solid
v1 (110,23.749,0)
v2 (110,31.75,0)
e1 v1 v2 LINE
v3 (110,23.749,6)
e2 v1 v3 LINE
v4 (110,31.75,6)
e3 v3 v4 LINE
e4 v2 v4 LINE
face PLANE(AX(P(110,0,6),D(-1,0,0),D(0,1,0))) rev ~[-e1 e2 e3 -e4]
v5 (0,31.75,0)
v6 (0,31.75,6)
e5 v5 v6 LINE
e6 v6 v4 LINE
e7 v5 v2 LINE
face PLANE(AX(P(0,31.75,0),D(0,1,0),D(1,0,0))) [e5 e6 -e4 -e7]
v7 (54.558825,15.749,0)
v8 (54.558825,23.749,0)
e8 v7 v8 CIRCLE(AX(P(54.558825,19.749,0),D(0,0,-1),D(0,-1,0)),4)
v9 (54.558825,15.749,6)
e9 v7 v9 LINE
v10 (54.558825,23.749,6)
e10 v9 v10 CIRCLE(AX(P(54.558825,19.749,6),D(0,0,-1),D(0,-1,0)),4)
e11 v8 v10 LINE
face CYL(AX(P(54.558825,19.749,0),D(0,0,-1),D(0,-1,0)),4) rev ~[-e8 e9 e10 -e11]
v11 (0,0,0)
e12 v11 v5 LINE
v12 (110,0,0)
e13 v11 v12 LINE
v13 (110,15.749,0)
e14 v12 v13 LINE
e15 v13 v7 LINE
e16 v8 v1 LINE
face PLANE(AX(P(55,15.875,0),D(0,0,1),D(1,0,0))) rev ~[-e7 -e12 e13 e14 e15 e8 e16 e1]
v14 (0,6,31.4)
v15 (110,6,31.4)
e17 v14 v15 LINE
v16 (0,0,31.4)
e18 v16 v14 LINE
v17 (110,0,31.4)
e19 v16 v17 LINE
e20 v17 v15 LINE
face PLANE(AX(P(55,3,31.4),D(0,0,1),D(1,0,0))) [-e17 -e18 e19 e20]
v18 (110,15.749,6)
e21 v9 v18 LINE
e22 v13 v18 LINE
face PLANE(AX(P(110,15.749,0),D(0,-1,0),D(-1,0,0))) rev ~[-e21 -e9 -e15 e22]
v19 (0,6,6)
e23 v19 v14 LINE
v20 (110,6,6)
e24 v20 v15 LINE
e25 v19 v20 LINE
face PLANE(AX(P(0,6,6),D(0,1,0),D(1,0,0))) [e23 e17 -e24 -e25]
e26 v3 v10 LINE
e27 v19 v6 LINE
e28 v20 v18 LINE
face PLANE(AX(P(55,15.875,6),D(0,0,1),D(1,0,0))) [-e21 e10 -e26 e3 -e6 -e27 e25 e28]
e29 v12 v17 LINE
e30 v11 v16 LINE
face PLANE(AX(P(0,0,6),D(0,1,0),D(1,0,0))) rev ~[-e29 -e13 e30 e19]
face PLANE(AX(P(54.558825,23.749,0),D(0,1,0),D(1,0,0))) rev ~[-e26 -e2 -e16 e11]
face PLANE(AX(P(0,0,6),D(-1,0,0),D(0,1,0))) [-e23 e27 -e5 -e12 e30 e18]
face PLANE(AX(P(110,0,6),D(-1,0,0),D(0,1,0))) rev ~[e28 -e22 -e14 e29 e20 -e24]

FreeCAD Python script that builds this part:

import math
import FreeCAD as App
import Part
import Sketcher
from FreeCAD import Vector

doc = App.newDocument("Part")
params = doc.addObject("Spreadsheet::Sheet", "Params")
for row, (alias, value) in enumerate([
    ("sketch1_width", "110 mm"),
    ("sketch1_height", "31.75 mm"),
    ("pad1_length", "6 mm"),
    ("sketch2_width", "110 mm"),
    ("sketch2_height", "6 mm"),
    ("pad2_length", "25.4 mm"),
    ("sketch3_radius", "4 mm"),
], start=1):
    params.set(f"A{row}", alias)
    params.set(f"B{row}", "=" + value)
    params.setAlias(f"B{row}", alias)

body = doc.addObject("PartDesign::Body", "Body")

sketch1 = doc.addObject("Sketcher::SketchObject", "Sketch")
body.addObject(sketch1)
sketch1.AttachmentSupport = (doc.XY_Plane, [""])
sketch1.MapMode = "FlatFace"
sketch1.addGeometry(Part.LineSegment(Vector(0, 31.75, 0), Vector(0, 0, 0)), False)
sketch1.addGeometry(Part.LineSegment(Vector(0, 0, 0), Vector(110, 0, 0)), False)
sketch1.addGeometry(Part.LineSegment(Vector(110, 0, 0), Vector(110, 31.75, 0)), False)
sketch1.addGeometry(Part.LineSegment(Vector(110, 31.75, 0), Vector(0, 31.75, 0)), False)
sketch1.addConstraint(Sketcher.Constraint("Coincident", 0, 2, 1, 1))
sketch1.addConstraint(Sketcher.Constraint("Coincident", 1, 2, 2, 1))
sketch1.addConstraint(Sketcher.Constraint("Coincident", 2, 2, 3, 1))
sketch1.addConstraint(Sketcher.Constraint("Coincident", 3, 2, 0, 1))
sketch1.addConstraint(Sketcher.Constraint("Vertical", 0))
sketch1.addConstraint(Sketcher.Constraint("Horizontal", 1))
sketch1.addConstraint(Sketcher.Constraint("Vertical", 2))
sketch1.addConstraint(Sketcher.Constraint("Horizontal", 3))
sketch1.addConstraint(Sketcher.Constraint("Coincident", 0, 2, -1, 1))
sketch1.addConstraint(Sketcher.Constraint("DistanceX", 1, 1, 1, 2, 110.0))
sketch1.addConstraint(Sketcher.Constraint("DistanceY", 0, 2, 0, 1, 31.75))
sketch1.setExpression("Constraints[9]", "Params.sketch1_width")
sketch1.setExpression("Constraints[10]", "Params.sketch1_height")
pad1 = doc.addObject("PartDesign::Pad", "Pad")
body.addObject(pad1)
pad1.Profile = sketch1
pad1.setExpression("Length", "Params.pad1_length")

sketch2 = doc.addObject("Sketcher::SketchObject", "Sketch001")
body.addObject(sketch2)
sketch2.AttachmentSupport = (doc.XY_Plane, [""])
sketch2.MapMode = "FlatFace"
sketch2.AttachmentOffset = App.Placement(Vector(0, 0, 6), App.Rotation())
sketch2.addGeometry(Part.LineSegment(Vector(0, 6, 0), Vector(0, 0, 0)), False)
sketch2.addGeometry(Part.LineSegment(Vector(0, 0, 0), Vector(110, 0, 0)), False)
sketch2.addGeometry(Part.LineSegment(Vector(110, 0, 0), Vector(110, 6, 0)), False)
sketch2.addGeometry(Part.LineSegment(Vector(110, 6, 0), Vector(0, 6, 0)), False)
sketch2.addConstraint(Sketcher.Constraint("Coincident", 0, 2, 1, 1))
sketch2.addConstraint(Sketcher.Constraint("Coincident", 1, 2, 2, 1))
sketch2.addConstraint(Sketcher.Constraint("Coincident", 2, 2, 3, 1))
sketch2.addConstraint(Sketcher.Constraint("Coincident", 3, 2, 0, 1))
sketch2.addConstraint(Sketcher.Constraint("Vertical", 0))
sketch2.addConstraint(Sketcher.Constraint("Horizontal", 1))
sketch2.addConstraint(Sketcher.Constraint("Vertical", 2))
sketch2.addConstraint(Sketcher.Constraint("Horizontal", 3))
sketch2.addConstraint(Sketcher.Constraint("Coincident", 0, 2, -1, 1))
sketch2.addConstraint(Sketcher.Constraint("DistanceX", 1, 1, 1, 2, 110.0))
sketch2.addConstraint(Sketcher.Constraint("DistanceY", 0, 2, 0, 1, 6.0))
sketch2.setExpression("Constraints[9]", "Params.sketch2_width")
sketch2.setExpression("Constraints[10]", "Params.sketch2_height")
pad2 = doc.addObject("PartDesign::Pad", "Pad001")
body.addObject(pad2)
pad2.Profile = sketch2
pad2.setExpression("Length", "Params.pad2_length")

sketch3 = doc.addObject("Sketcher::SketchObject", "Sketch002")
body.addObject(sketch3)
sketch3.AttachmentSupport = (doc.XY_Plane, [""])
sketch3.MapMode = "FlatFace"
sketch3.addGeometry(Part.LineSegment(Vector(54.558825, 23.749, 0), Vector(110, 23.749, 0)), False)
sketch3.addGeometry(Part.LineSegment(Vector(110, 23.749, 0), Vector(110, 15.749, 0)), False)
sketch3.addGeometry(Part.LineSegment(Vector(110, 15.749, 0), Vector(54.558825, 15.749, 0)), False)
sketch3.addGeometry(Part.ArcOfCircle(Part.Circle(Vector(54.558825, 19.749, 0), Vector(0, 0, 1), 4), math.radians(90), math.radians(270)), False)
sketch3.addConstraint(Sketcher.Constraint("Coincident", 0, 2, 1, 1))
sketch3.addConstraint(Sketcher.Constraint("Coincident", 1, 2, 2, 1))
sketch3.addConstraint(Sketcher.Constraint("Tangent", 2, 2, 3, 2))
sketch3.addConstraint(Sketcher.Constraint("Tangent", 3, 1, 0, 1))
sketch3.addConstraint(Sketcher.Constraint("Horizontal", 0))
sketch3.addConstraint(Sketcher.Constraint("Vertical", 1))
sketch3.addConstraint(Sketcher.Constraint("Horizontal", 2))
sketch3.addConstraint(Sketcher.Constraint("Radius", 3, 4.0))
sketch3.addConstraint(Sketcher.Constraint("DistanceX", -1, 1, 0, 2, 110.0))
sketch3.addConstraint(Sketcher.Constraint("DistanceY", -1, 1, 3, 3, 19.749))
sketch3.addConstraint(Sketcher.Constraint("DistanceX", 0, 1, 0, 2, 55.441175))
sketch3.setExpression("Constraints[7]", "Params.sketch3_radius")
pocket1 = doc.addObject("PartDesign::Pocket", "Pocket")
body.addObject(pocket1)
pocket1.Profile = sketch3
pocket1.Type = "ThroughAll"
pocket1.Reversed = True

doc.recompute()
